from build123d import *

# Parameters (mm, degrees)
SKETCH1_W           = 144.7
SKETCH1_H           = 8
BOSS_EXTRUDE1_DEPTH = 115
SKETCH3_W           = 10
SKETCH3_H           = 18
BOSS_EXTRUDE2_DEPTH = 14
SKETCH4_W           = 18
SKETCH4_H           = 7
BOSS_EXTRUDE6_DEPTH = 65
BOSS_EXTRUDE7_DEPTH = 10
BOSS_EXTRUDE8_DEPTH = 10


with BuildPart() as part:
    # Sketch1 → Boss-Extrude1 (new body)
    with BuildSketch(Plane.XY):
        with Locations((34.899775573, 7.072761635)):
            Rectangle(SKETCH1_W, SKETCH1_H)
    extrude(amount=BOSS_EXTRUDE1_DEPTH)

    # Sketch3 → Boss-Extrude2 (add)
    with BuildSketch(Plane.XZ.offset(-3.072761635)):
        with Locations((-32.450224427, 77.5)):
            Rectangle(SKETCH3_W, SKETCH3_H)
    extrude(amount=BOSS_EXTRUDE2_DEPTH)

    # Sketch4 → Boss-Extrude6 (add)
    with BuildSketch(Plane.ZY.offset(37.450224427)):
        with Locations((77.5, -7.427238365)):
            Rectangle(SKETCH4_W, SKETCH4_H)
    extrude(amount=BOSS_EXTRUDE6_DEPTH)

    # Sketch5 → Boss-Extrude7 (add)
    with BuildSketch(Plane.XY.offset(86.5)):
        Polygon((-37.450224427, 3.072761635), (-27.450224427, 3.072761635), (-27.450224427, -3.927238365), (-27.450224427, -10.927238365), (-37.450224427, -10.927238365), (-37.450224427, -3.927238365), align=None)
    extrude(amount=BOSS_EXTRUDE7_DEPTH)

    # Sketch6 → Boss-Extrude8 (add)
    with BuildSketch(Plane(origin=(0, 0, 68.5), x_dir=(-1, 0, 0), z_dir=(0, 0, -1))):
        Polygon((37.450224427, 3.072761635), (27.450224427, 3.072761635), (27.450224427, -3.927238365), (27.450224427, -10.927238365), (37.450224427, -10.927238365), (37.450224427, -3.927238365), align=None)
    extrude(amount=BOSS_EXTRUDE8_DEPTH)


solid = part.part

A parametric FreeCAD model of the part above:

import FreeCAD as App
import Part
import Sketcher
Q = App.Units.Quantity

doc = App.newDocument("Part")
body = doc.addObject("PartDesign::Body", "Body")

sketch1 = body.newObject("Sketcher::SketchObject", "Sketch")
sketch1.AttachmentSupport = (doc.getObject("XY_Plane"), [""])
sketch1.MapMode = "FlatFace"
sketch1.addGeometry(Part.LineSegment(App.Vector(-37, 11, 0), App.Vector(-37, 3, 0)), False)
sketch1.addGeometry(Part.LineSegment(App.Vector(-37, 3, 0), App.Vector(107, 3, 0)), False)
sketch1.addGeometry(Part.LineSegment(App.Vector(107, 3, 0), App.Vector(107, 11, 0)), False)
sketch1.addGeometry(Part.LineSegment(App.Vector(107, 11, 0), App.Vector(-37, 11, 0)), False)
sketch1.addConstraint(Sketcher.Constraint("Coincident", 0, 2, 1, 1))
sketch1.addConstraint(Sketcher.Constraint("Coincident", 1, 2, 2, 1))
sketch1.addConstraint(Sketcher.Constraint("Coincident", 2, 2, 3, 1))
sketch1.addConstraint(Sketcher.Constraint("Coincident", 3, 2, 0, 1))
sketch1.addConstraint(Sketcher.Constraint("Vertical", 0))
sketch1.addConstraint(Sketcher.Constraint("Horizontal", 1))
sketch1.addConstraint(Sketcher.Constraint("Vertical", 2))
sketch1.addConstraint(Sketcher.Constraint("Horizontal", 3))
sketch1.addConstraint(Sketcher.Constraint("DistanceY", 0, 2, 0, 1, Q("8 mm")))
sketch1.addConstraint(Sketcher.Constraint("DistanceX", 1, 1, 1, 2, Q("144.7 mm")))
sketch1.addConstraint(Sketcher.Constraint("DistanceY", -1, 1, 0, 2, Q("3.072762 mm")))
sketch1.addConstraint(Sketcher.Constraint("DistanceX", 0, 2, -1, 1, Q("37.450224 mm")))
pad1 = body.newObject("PartDesign::Pad", "Pad")
pad1.Profile = sketch1
pad1.Length = 115

sketch2 = body.newObject("Sketcher::SketchObject", "Sketch001")
sketch2.AttachmentSupport = (doc.getObject("XZ_Plane"), [""])
sketch2.MapMode = "FlatFace"
sketch2.AttachmentOffset = App.Placement(App.Vector(0, 0, -3.072762), App.Rotation())
sketch2.addGeometry(Part.LineSegment(App.Vector(-37, 86, 0), App.Vector(-37, 68, 0)), False)
sketch2.addGeometry(Part.LineSegment(App.Vector(-37, 68, 0), App.Vector(-27, 68, 0)), False)
sketch2.addGeometry(Part.LineSegment(App.Vector(-27, 68, 0), App.Vector(-27, 86, 0)), False)
sketch2.addGeometry(Part.LineSegment(App.Vector(-27, 86, 0), App.Vector(-37, 86, 0)), False)
sketch2.addConstraint(Sketcher.Constraint("Coincident", 0, 2, 1, 1))
sketch2.addConstraint(Sketcher.Constraint("Coincident", 1, 2, 2, 1))
sketch2.addConstraint(Sketcher.Constraint("Coincident", 2, 2, 3, 1))
sketch2.addConstraint(Sketcher.Constraint("Coincident", 3, 2, 0, 1))
sketch2.addConstraint(Sketcher.Constraint("Vertical", 0))
sketch2.addConstraint(Sketcher.Constraint("Horizontal", 1))
sketch2.addConstraint(Sketcher.Constraint("Vertical", 2))
sketch2.addConstraint(Sketcher.Constraint("Horizontal", 3))
sketch2.addConstraint(Sketcher.Constraint("DistanceX", 1, 1, 1, 2, Q("10 mm")))
sketch2.addConstraint(Sketcher.Constraint("DistanceY", 0, 2, 0, 1, Q("18 mm")))
sketch2.addConstraint(Sketcher.Constraint("DistanceY", -1, 1, 0, 2, Q("68.5 mm")))
sketch2.addConstraint(Sketcher.Constraint("DistanceX", 0, 2, -1, 1, Q("37.450224 mm")))
pad2 = body.newObject("PartDesign::Pad", "Pad001")
pad2.Profile = sketch2
pad2.Length = 14

sketch3 = body.newObject("Sketcher::SketchObject", "Sketch002")
sketch3.AttachmentSupport = (doc.getObject("YZ_Plane"), [""])
sketch3.MapMode = "FlatFace"
sketch3.AttachmentOffset = App.Placement(App.Vector(0, 0, -37.450224), App.Rotation())
sketch3.addGeometry(Part.LineSegment(App.Vector(-4, 68, 0), App.Vector(-11, 68, 0)), False)
sketch3.addGeometry(Part.LineSegment(App.Vector(-11, 68, 0), App.Vector(-11, 86, 0)), False)
sketch3.addGeometry(Part.LineSegment(App.Vector(-11, 86, 0), App.Vector(-4, 86, 0)), False)
sketch3.addGeometry(Part.LineSegment(App.Vector(-4, 86, 0), App.Vector(-4, 68, 0)), False)
sketch3.addConstraint(Sketcher.Constraint("Coincident", 0, 2, 1, 1))
sketch3.addConstraint(Sketcher.Constraint("Coincident", 1, 2, 2, 1))
sketch3.addConstraint(Sketcher.Constraint("Coincident", 2, 2, 3, 1))
sketch3.addConstraint(Sketcher.Constraint("Coincident", 3, 2, 0, 1))
sketch3.addConstraint(Sketcher.Constraint("Horizontal", 0))
sketch3.addConstraint(Sketcher.Constraint("Vertical", 1))
sketch3.addConstraint(Sketcher.Constraint("Horizontal", 2))
sketch3.addConstraint(Sketcher.Constraint("Vertical", 3))
sketch3.addConstraint(Sketcher.Constraint("DistanceX", 0, 2, 0, 1, Q("7 mm")))
sketch3.addConstraint(Sketcher.Constraint("DistanceY", 1, 1, 1, 2, Q("18 mm")))
sketch3.addConstraint(Sketcher.Constraint("DistanceY", -1, 1, 0, 2, Q("68.5 mm")))
sketch3.addConstraint(Sketcher.Constraint("DistanceX", 0, 2, -1, 1, Q("10.927238 mm")))
pad3 = body.newObject("PartDesign::Pad", "Pad002")
pad3.Profile = sketch3
pad3.Length = 65
pad3.Reversed = True

sketch4 = body.newObject("Sketcher::SketchObject", "Sketch003")
sketch4.AttachmentSupport = (doc.getObject("XY_Plane"), [""])
sketch4.MapMode = "FlatFace"
sketch4.AttachmentOffset = App.Placement(App.Vector(0, 0, 86.5), App.Rotation())
sketch4.addGeometry(Part.LineSegment(App.Vector(-27, 3, 0), App.Vector(-37, 3, 0)), False)
sketch4.addGeometry(Part.LineSegment(App.Vector(-37, 3, 0), App.Vector(-37, -11, 0)), False)
sketch4.addGeometry(Part.LineSegment(App.Vector(-37, -11, 0), App.Vector(-27, -11, 0)), False)
sketch4.addGeometry(Part.LineSegment(App.Vector(-27, -11, 0), App.Vector(-27, 3, 0)), False)
sketch4.addConstraint(Sketcher.Constraint("Coincident", 0, 2, 1, 1))
sketch4.addConstraint(Sketcher.Constraint("Coincident", 1, 2, 2, 1))
sketch4.addConstraint(Sketcher.Constraint("Coincident", 2, 2, 3, 1))
sketch4.addConstraint(Sketcher.Constraint("Coincident", 3, 2, 0, 1))
sketch4.addConstraint(Sketcher.Constraint("Horizontal", 0))
sketch4.addConstraint(Sketcher.Constraint("Vertical", 1))
sketch4.addConstraint(Sketcher.Constraint("Horizontal", 2))
sketch4.addConstraint(Sketcher.Constraint("Vertical", 3))
sketch4.addConstraint(Sketcher.Constraint("DistanceX", 0, 2, 0, 1, Q("10 mm")))
sketch4.addConstraint(Sketcher.Constraint("DistanceY", 1, 2, 1, 1, Q("14 mm")))
sketch4.addConstraint(Sketcher.Constraint("DistanceY", -1, 1, 0, 2, Q("3.072762 mm")))
sketch4.addConstraint(Sketcher.Constraint("DistanceX", 0, 2, -1, 1, Q("37.450224 mm")))
pad4 = body.newObject("PartDesign::Pad", "Pad003")
pad4.Profile = sketch4
pad4.Length = 10

sketch5 = body.newObject("Sketcher::SketchObject", "Sketch004")
sketch5.AttachmentSupport = (doc.getObject("XY_Plane"), [""])
sketch5.MapMode = "FlatFace"
sketch5.AttachmentOffset = App.Placement(App.Vector(0, 0, 68.5), App.Rotation())
sketch5.addGeometry(Part.LineSegment(App.Vector(-37, 3, 0), App.Vector(-27, 3, 0)), False)
sketch5.addGeometry(Part.LineSegment(App.Vector(-27, 3, 0), App.Vector(-27, -11, 0)), False)
sketch5.addGeometry(Part.LineSegment(App.Vector(-27, -11, 0), App.Vector(-37, -11, 0)), False)
sketch5.addGeometry(Part.LineSegment(App.Vector(-37, -11, 0), App.Vector(-37, 3, 0)), False)
sketch5.addConstraint(Sketcher.Constraint("Coincident", 0, 2, 1, 1))
sketch5.addConstraint(Sketcher.Constraint("Coincident", 1, 2, 2, 1))
sketch5.addConstraint(Sketcher.Constraint("Coincident", 2, 2, 3, 1))
sketch5.addConstraint(Sketcher.Constraint("Coincident", 3, 2, 0, 1))
sketch5.addConstraint(Sketcher.Constraint("Horizontal", 0))
sketch5.addConstraint(Sketcher.Constraint("Vertical", 1))
sketch5.addConstraint(Sketcher.Constraint("Horizontal", 2))
sketch5.addConstraint(Sketcher.Constraint("Vertical", 3))
sketch5.addConstraint(Sketcher.Constraint("DistanceX", 0, 1, 0, 2, Q("10 mm")))
sketch5.addConstraint(Sketcher.Constraint("DistanceY", 1, 2, 1, 1, Q("14 mm")))
sketch5.addConstraint(Sketcher.Constraint("DistanceY", -1, 1, 0, 2, Q("3.072762 mm")))
sketch5.addConstraint(Sketcher.Constraint("DistanceX", 0, 2, -1, 1, Q("27.450224 mm")))
pad5 = body.newObject("PartDesign::Pad", "Pad004")
pad5.Profile = sketch5
pad5.Length = 10
pad5.Reversed = True

doc.recompute()
